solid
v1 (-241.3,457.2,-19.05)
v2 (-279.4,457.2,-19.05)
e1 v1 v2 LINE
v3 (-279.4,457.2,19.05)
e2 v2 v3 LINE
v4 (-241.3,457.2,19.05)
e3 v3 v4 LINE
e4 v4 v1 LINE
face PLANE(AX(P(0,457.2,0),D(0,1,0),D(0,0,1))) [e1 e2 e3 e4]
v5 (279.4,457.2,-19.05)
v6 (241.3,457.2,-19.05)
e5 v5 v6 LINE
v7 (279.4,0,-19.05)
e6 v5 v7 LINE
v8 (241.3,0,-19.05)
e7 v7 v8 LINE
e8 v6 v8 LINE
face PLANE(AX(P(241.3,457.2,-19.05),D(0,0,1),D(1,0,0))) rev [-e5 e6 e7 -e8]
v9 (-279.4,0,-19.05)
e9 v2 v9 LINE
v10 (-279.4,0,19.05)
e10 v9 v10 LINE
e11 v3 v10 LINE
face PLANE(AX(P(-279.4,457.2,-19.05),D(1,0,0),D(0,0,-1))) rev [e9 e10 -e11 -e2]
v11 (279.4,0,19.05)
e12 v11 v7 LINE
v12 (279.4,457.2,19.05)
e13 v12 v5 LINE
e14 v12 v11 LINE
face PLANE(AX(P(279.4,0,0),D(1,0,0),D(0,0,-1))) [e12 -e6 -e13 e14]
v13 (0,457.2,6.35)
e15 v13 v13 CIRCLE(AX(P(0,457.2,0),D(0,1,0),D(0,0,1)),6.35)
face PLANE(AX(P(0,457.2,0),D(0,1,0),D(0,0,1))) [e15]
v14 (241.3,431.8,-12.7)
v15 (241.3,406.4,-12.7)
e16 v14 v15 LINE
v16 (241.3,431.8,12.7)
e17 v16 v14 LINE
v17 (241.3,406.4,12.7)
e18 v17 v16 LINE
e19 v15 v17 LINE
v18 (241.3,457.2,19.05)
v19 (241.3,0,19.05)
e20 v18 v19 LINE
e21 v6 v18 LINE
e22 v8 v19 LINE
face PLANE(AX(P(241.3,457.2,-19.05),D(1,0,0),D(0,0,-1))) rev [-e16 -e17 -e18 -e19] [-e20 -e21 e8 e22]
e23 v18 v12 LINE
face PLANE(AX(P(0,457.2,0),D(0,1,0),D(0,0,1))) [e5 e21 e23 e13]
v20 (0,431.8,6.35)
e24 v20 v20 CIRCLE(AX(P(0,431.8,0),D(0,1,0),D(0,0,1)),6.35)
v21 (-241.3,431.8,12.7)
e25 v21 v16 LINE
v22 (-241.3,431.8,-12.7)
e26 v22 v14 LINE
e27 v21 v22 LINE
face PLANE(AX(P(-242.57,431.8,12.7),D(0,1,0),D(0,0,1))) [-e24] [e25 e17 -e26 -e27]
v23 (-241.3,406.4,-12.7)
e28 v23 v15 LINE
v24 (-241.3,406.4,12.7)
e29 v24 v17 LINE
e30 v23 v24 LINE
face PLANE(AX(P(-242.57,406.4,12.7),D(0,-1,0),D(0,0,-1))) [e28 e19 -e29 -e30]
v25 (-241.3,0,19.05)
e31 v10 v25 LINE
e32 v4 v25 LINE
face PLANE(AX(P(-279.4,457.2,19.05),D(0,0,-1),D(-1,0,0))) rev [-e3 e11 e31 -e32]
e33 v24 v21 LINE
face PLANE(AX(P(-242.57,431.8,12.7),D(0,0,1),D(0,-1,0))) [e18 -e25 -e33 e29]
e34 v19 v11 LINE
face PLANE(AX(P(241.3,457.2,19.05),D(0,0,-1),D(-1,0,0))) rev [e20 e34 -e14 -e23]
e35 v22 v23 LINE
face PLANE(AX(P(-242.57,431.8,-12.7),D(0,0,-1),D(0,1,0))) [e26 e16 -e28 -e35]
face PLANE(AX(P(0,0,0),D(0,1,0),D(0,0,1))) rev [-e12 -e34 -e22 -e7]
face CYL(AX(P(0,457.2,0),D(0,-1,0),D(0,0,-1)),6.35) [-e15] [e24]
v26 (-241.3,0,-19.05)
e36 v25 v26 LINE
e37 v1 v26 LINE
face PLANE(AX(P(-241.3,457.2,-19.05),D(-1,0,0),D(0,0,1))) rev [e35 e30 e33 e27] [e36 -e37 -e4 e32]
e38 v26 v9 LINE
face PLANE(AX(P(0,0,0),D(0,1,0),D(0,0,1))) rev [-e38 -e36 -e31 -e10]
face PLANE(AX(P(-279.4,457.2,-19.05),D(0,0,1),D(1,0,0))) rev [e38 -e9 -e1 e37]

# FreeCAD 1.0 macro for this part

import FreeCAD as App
import Part
import Sketcher
Q = App.Units.Quantity

doc = App.newDocument("Part")
body = doc.addObject("PartDesign::Body", "Body")

# Sketch on XZ plane
sketch1 = body.newObject("Sketcher::SketchObject", "Sketch")
sketch1.AttachmentSupport = (doc.getObject("XZ_Plane"), [""])
sketch1.MapMode = "FlatFace"
sketch1.addGeometry([
    Part.LineSegment(App.Vector(-279, -19, 0), App.Vector(-279, 19, 0)),
    Part.LineSegment(App.Vector(-279, 19, 0), App.Vector(-241, 19, 0)),
    Part.LineSegment(App.Vector(-241, 19, 0), App.Vector(-241, -19, 0)),
    Part.LineSegment(App.Vector(-241, -19, 0), App.Vector(-279, -19, 0)),
], False)
sketch1.addConstraint([
    Sketcher.Constraint("Coincident", 0, 2, 1, 1),
    Sketcher.Constraint("Coincident", 1, 2, 2, 1),
    Sketcher.Constraint("Coincident", 2, 2, 3, 1),
    Sketcher.Constraint("Coincident", 3, 2, 0, 1),
    Sketcher.Constraint("Vertical", 0),
    Sketcher.Constraint("Horizontal", 1),
    Sketcher.Constraint("Vertical", 2),
    Sketcher.Constraint("Horizontal", 3),
    Sketcher.Constraint("Equal", 3, 0),
    Sketcher.Constraint("DistanceX", 1, 1, 1, 2, Q("1.5 in")),
    Sketcher.Constraint("DistanceX", 0, 2, -1, 1, Q("11 in")),
    Sketcher.Constraint("DistanceY", -1, 1, 0, 2, Q("0.75 in")),
])
pad1 = body.newObject("PartDesign::Pad", "Pad")
pad1.Profile = sketch1
pad1.Length = Q("18 in")
pad1.Reversed = True
body2 = doc.addObject("PartDesign::Body", "Body001")

# Sketch on XZ plane
sketch2 = body2.newObject("Sketcher::SketchObject", "Sketch001")
sketch2.AttachmentSupport = (doc.getObject("XZ_Plane001"), [""])
sketch2.MapMode = "FlatFace"
sketch2.addGeometry([
    Part.LineSegment(App.Vector(241, -19, 0), App.Vector(241, 19, 0)),
    Part.LineSegment(App.Vector(241, 19, 0), App.Vector(279, 19, 0)),
    Part.LineSegment(App.Vector(279, 19, 0), App.Vector(279, -19, 0)),
    Part.LineSegment(App.Vector(279, -19, 0), App.Vector(241, -19, 0)),
], False)
sketch2.addConstraint([
    Sketcher.Constraint("Coincident", 0, 2, 1, 1),
    Sketcher.Constraint("Coincident", 1, 2, 2, 1),
    Sketcher.Constraint("Coincident", 2, 2, 3, 1),
    Sketcher.Constraint("Coincident", 3, 2, 0, 1),
    Sketcher.Constraint("Vertical", 0),
    Sketcher.Constraint("Horizontal", 1),
    Sketcher.Constraint("Vertical", 2),
    Sketcher.Constraint("Horizontal", 3),
    Sketcher.Constraint("Equal", 3, 0),
    Sketcher.Constraint("DistanceX", 1, 1, 1, 2, Q("1.5 in")),
    Sketcher.Constraint("DistanceX", -1, 1, 1, 2, Q("11 in")),
    Sketcher.Constraint("DistanceY", -1, 1, 0, 2, Q("0.75 in")),
])
pad2 = body2.newObject("PartDesign::Pad", "Pad001")
pad2.Profile = sketch2
pad2.Length = Q("18 in")
pad2.Reversed = True
body.AllowCompound = True
doc.recompute()

boolean = body.newObject("PartDesign::Boolean", "Boolean")
boolean.Type = "Fuse"
boolean.addObjects([body2])

# Sketch on YZ plane
sketch3 = body.newObject("Sketcher::SketchObject", "Sketch002")
sketch3.AttachmentSupport = (doc.getObject("YZ_Plane"), [""])
sketch3.MapMode = "FlatFace"
sketch3.AttachmentOffset = App.Placement(App.Vector(0, 0, 11 * 25.4), App.Rotation())
sketch3.addGeometry([
    Part.LineSegment(App.Vector(432, 13, 0), App.Vector(406, 13, 0)),
    Part.LineSegment(App.Vector(406, 13, 0), App.Vector(406, -13, 0)),
    Part.LineSegment(App.Vector(406, -13, 0), App.Vector(432, -13, 0)),
    Part.LineSegment(App.Vector(432, -13, 0), App.Vector(432, 13, 0)),
], False)
sketch3.addConstraint([
    Sketcher.Constraint("Coincident", 0, 2, 1, 1),
    Sketcher.Constraint("Coincident", 1, 2, 2, 1),
    Sketcher.Constraint("Coincident", 2, 2, 3, 1),
    Sketcher.Constraint("Coincident", 3, 2, 0, 1),
    Sketcher.Constraint("Horizontal", 0),
    Sketcher.Constraint("Vertical", 1),
    Sketcher.Constraint("Horizontal", 2),
    Sketcher.Constraint("Vertical", 3),
    Sketcher.Constraint("Equal", 2, 1),
    Sketcher.Constraint("DistanceX", 0, 2, 0, 1, Q("1 in")),
    Sketcher.Constraint("DistanceX", -1, 1, 0, 2, Q("16 in")),
    Sketcher.Constraint("DistanceY", -1, 1, 0, 2, Q("0.5 in")),
])
pad3 = body.newObject("PartDesign::Pad", "Pad002")
pad3.Profile = sketch3
pad3.Length = Q("20.55 in")
pad3.Reversed = True

# Sketch on XZ plane
sketch4 = body.newObject("Sketcher::SketchObject", "Sketch003")
sketch4.AttachmentSupport = (doc.getObject("XZ_Plane"), [""])
sketch4.MapMode = "FlatFace"
sketch4.AttachmentOffset = App.Placement(App.Vector(0, 0, -17 * 25.4), App.Rotation())
sketch4.addGeometry(Part.Circle(App.Vector(0, 0, 0), App.Vector(0, 0, 1), 6), False)
sketch4.addConstraint([
    Sketcher.Constraint("Coincident", 0, 3, -1, 1),
    Sketcher.Constraint("Diameter", 0, Q("0.5 in")),
])
pad4 = body.newObject("PartDesign::Pad", "Pad003")
pad4.Profile = sketch4
pad4.Length = Q("1 in")
pad4.Reversed = True

doc.recompute()
